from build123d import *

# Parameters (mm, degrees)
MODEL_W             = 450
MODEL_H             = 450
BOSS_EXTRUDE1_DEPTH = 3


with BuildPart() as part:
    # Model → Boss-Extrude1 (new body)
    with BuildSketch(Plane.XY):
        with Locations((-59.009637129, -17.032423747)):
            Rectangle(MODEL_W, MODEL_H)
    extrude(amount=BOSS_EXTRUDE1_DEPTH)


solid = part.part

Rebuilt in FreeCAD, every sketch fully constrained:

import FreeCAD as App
import Part
import Sketcher
Q = App.Units.Quantity


def add_polygon(sketch, points):
    """Adds a closed chain of lines whose ends are joined by coincident constraints."""
    first, n = sketch.GeometryCount, len(points)
    for a, b in zip(points, points[1:] + points[:1]):
        sketch.addGeometry(Part.LineSegment(App.Vector(*a, 0), App.Vector(*b, 0)), False)
    for i in range(n):
        sketch.addConstraint(Sketcher.Constraint("Coincident", first + i, 2, first + (i + 1) % n, 1))

doc = App.newDocument("Part")
body = doc.addObject("PartDesign::Body", "Body")

# Sketch on XY plane
sketch1 = body.newObject("Sketcher::SketchObject", "Sketch")
sketch1.AttachmentSupport = (doc.getObject("XY_Plane"), [""])
sketch1.MapMode = "FlatFace"
add_polygon(sketch1, [(-284, 208), (-284, -242), (166, -242), (166, 208)])  # lines 0-3
sketch1.addConstraint(Sketcher.Constraint("Vertical", 0))
sketch1.addConstraint(Sketcher.Constraint("Horizontal", 1))
sketch1.addConstraint(Sketcher.Constraint("Vertical", 2))
sketch1.addConstraint(Sketcher.Constraint("Horizontal", 3))
sketch1.addConstraint(Sketcher.Constraint("Equal", 3, 0))
sketch1.addConstraint(Sketcher.Constraint("DistanceX", 1, 1, 1, 2, Q("450 mm")))
sketch1.addConstraint(Sketcher.Constraint("DistanceX", 0, 2, -1, 1, Q("284.009637 mm")))
sketch1.addConstraint(Sketcher.Constraint("DistanceY", 0, 2, -1, 1, Q("242.032424 mm")))
pad1 = body.newObject("PartDesign::Pad", "Pad")
pad1.Profile = sketch1
pad1.Length = 3

doc.recompute()
